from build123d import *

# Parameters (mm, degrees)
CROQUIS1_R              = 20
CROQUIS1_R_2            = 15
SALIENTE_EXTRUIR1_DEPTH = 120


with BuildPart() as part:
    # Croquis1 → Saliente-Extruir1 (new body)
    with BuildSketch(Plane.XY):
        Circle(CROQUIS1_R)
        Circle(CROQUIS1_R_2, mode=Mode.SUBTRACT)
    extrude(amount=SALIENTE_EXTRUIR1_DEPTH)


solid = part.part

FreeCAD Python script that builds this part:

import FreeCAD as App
import Part
import Sketcher

V = App.Vector
Q = App.Units.Quantity

doc = App.newDocument("Part")
params = doc.addObject("Spreadsheet::Sheet", "Params")
for row, (alias, value) in enumerate([
    ("sketch1_diameter", "40 mm"),
    ("sketch1_diameter2", "30 mm"),
    ("pad1_length", "120 mm"),
], start=1):
    params.set(f"A{row}", alias)
    params.set(f"B{row}", "=" + value)
    params.setAlias(f"B{row}", alias)

body = doc.addObject("PartDesign::Body", "Body")

sketch1 = body.newObject("Sketcher::SketchObject", "Sketch")
sketch1.AttachmentSupport = (doc.getObject("XY_Plane"), [""])
sketch1.MapMode = "FlatFace"
sketch1.addGeometry([
    Part.Circle(V(0, 0, 0), V(0, 0, 1), 20),
    Part.Circle(V(0, 0, 0), V(0, 0, 1), 15),
], False)
sketch1.addConstraint([
    Sketcher.Constraint("Coincident", 0, 3, -1, 1),
    Sketcher.Constraint("Coincident", 1, 3, -1, 1),
    Sketcher.Constraint("Diameter", 0, Q("40 mm")),
    Sketcher.Constraint("Diameter", 1, Q("30 mm")),
])
sketch1.setExpression("Constraints[2]", "Params.sketch1_diameter")
sketch1.setExpression("Constraints[3]", "Params.sketch1_diameter2")
pad1 = body.newObject("PartDesign::Pad", "Pad")
pad1.Profile = sketch1
pad1.setExpression("Length", "Params.pad1_length")

doc.recompute()
